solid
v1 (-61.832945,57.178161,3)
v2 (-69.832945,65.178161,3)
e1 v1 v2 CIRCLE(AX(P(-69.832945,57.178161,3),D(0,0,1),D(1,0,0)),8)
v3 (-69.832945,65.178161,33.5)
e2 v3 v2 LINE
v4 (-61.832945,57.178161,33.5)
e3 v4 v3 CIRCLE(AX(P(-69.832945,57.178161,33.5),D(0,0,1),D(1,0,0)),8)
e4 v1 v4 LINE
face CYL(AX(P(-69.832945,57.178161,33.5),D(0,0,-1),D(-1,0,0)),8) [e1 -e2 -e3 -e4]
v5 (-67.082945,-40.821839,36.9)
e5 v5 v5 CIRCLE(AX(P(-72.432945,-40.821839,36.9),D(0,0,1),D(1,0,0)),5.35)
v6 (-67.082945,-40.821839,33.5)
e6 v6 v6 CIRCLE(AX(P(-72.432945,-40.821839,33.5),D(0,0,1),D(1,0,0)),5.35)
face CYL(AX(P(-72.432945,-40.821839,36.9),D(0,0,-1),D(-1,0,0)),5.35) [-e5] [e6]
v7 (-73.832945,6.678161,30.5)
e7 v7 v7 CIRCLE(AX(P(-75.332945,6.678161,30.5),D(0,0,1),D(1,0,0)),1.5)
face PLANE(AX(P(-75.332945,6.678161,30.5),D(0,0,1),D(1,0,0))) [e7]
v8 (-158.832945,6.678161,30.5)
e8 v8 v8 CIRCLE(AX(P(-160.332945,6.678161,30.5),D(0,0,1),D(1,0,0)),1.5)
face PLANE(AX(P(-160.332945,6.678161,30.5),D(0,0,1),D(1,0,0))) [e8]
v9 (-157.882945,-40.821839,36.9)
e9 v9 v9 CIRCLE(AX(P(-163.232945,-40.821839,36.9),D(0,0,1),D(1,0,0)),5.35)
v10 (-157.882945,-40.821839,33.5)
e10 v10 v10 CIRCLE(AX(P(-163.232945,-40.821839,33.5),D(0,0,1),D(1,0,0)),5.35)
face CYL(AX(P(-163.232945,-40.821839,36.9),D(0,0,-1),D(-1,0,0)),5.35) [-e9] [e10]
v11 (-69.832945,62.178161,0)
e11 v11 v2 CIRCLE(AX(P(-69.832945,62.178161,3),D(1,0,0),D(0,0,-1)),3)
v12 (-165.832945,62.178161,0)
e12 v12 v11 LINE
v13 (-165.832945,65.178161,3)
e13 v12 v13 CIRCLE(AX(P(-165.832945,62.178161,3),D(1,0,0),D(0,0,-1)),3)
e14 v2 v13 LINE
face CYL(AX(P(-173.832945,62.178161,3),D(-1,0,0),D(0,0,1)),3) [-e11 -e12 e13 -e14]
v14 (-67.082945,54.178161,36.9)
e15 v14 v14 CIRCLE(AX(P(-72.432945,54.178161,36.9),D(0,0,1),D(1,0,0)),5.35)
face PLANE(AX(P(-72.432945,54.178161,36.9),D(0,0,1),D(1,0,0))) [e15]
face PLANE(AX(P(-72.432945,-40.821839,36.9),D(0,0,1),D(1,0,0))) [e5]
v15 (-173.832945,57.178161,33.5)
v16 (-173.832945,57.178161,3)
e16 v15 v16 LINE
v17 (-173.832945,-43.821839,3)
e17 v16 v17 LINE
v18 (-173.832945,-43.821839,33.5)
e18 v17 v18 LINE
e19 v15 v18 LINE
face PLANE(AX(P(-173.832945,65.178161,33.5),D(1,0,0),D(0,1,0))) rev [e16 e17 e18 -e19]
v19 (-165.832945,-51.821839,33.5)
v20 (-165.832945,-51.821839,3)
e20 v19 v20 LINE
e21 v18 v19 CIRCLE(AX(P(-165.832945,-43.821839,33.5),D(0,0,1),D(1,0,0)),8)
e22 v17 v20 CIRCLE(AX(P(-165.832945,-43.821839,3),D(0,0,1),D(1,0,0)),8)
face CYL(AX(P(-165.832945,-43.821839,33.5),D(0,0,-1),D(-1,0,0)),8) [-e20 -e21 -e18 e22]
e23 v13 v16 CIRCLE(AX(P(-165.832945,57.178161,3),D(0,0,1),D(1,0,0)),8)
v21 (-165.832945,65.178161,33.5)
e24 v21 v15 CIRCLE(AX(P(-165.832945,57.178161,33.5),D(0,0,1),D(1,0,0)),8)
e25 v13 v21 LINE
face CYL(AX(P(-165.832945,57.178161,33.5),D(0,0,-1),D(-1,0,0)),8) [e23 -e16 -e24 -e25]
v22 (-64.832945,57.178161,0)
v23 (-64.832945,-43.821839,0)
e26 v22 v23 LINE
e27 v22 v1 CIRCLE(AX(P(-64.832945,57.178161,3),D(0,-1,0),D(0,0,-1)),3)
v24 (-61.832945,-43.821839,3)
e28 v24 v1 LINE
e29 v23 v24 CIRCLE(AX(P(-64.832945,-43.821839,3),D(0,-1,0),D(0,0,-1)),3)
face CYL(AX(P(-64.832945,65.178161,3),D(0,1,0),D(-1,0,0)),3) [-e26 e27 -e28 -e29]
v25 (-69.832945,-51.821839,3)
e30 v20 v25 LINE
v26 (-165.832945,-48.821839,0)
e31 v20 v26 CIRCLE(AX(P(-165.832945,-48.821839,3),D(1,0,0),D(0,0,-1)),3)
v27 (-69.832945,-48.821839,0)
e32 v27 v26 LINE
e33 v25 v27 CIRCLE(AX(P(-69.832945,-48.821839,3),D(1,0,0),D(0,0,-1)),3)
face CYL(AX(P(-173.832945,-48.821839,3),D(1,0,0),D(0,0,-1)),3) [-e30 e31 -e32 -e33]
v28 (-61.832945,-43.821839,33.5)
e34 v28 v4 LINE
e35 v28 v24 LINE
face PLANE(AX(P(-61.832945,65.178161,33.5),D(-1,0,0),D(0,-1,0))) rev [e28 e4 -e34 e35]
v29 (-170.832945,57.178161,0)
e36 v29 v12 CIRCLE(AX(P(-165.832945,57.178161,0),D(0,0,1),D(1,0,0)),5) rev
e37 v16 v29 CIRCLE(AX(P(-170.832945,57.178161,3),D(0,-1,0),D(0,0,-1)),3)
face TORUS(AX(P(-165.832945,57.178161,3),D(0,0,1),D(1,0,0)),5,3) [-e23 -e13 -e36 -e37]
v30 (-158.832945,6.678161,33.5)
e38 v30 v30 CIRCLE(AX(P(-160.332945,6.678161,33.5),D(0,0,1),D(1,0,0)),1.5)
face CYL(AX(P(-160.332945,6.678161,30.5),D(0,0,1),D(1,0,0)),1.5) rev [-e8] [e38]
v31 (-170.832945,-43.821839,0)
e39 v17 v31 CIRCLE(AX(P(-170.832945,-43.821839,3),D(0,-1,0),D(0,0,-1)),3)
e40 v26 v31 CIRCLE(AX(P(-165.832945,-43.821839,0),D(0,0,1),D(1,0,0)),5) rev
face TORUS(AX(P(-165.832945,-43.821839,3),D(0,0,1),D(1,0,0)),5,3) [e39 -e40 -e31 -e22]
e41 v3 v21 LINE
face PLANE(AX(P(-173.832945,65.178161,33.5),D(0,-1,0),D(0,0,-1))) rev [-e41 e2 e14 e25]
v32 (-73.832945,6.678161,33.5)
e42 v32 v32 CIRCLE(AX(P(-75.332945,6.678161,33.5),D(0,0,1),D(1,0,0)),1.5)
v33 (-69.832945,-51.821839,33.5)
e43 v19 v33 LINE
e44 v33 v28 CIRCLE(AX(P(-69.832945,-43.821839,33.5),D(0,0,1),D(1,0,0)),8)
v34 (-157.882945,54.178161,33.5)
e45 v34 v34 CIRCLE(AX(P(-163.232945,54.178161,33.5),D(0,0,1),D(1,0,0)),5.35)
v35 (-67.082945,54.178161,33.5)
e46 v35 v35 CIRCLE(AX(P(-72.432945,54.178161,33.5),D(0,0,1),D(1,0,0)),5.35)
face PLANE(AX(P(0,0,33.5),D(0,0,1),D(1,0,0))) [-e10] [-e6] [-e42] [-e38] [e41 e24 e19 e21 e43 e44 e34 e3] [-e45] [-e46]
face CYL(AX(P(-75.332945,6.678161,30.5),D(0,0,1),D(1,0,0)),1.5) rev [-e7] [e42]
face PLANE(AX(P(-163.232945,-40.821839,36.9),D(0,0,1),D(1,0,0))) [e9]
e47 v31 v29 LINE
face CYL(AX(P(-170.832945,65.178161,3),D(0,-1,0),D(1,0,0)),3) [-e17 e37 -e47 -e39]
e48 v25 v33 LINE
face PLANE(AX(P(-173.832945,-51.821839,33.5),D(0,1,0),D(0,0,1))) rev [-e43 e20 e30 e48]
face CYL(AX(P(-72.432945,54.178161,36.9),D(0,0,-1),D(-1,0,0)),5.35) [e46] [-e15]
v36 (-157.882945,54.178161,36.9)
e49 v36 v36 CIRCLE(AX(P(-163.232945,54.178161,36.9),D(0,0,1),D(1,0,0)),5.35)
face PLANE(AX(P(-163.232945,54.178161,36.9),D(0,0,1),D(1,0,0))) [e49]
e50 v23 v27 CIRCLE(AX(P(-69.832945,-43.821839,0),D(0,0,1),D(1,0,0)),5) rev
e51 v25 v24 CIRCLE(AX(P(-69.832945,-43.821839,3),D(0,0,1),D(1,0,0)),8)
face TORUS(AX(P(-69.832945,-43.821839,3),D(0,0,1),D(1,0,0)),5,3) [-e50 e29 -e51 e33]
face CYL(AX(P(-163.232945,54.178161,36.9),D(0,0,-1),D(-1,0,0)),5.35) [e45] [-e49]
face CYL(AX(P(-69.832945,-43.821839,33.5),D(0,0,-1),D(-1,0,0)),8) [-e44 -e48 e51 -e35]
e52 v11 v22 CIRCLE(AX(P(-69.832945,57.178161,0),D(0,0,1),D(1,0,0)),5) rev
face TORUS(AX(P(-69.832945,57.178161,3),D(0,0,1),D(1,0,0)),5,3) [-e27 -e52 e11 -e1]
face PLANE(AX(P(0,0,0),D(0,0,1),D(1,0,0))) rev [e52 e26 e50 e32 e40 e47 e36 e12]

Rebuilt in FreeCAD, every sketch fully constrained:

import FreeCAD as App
import Part
import Sketcher

V = App.Vector
Q = App.Units.Quantity


def edges_at(feature, points):
    """Names of the edges that pass closest to the given points."""
    edges = feature.Shape.Edges
    near = lambda p: min(range(len(edges)), key=lambda i: edges[i].distToShape(Part.Vertex(*p))[0])
    return sorted({f"Edge{near(p) + 1}" for p in points})

doc = App.newDocument("Part")
body = doc.addObject("PartDesign::Body", "Body")

# Sketch on XY plane
sketch1 = doc.addObject("Sketcher::SketchObject", "Sketch")
body.addObject(sketch1)
sketch1.AttachmentSupport = (doc.XY_Plane, [""])
sketch1.MapMode = "FlatFace"
sketch1.addGeometry([
    Part.LineSegment(V(-174, 65, 0), V(-174, -52, 0)),
    Part.LineSegment(V(-174, -52, 0), V(-62, -52, 0)),
    Part.LineSegment(V(-62, -52, 0), V(-62, 65, 0)),
    Part.LineSegment(V(-62, 65, 0), V(-174, 65, 0)),
], False)
sketch1.addConstraint([
    Sketcher.Constraint("Coincident", 0, 2, 1, 1),
    Sketcher.Constraint("Coincident", 1, 2, 2, 1),
    Sketcher.Constraint("Coincident", 2, 2, 3, 1),
    Sketcher.Constraint("Coincident", 3, 2, 0, 1),
    Sketcher.Constraint("Vertical", 0),
    Sketcher.Constraint("Horizontal", 1),
    Sketcher.Constraint("Vertical", 2),
    Sketcher.Constraint("Horizontal", 3),
    Sketcher.Constraint("DistanceX", 1, 1, 1, 2, Q("112 mm")),
    Sketcher.Constraint("DistanceY", 0, 2, 0, 1, Q("117 mm")),
    Sketcher.Constraint("DistanceY", 0, 2, -1, 1, Q("51.821839 mm")),
    Sketcher.Constraint("DistanceX", 0, 2, -1, 1, Q("173.832945 mm")),
])
pad1 = doc.addObject("PartDesign::Pad", "Pad")
body.addObject(pad1)
pad1.Profile = sketch1
pad1.Length = 33.5
doc.recompute()

fillet = doc.addObject("PartDesign::Fillet", "Fillet")
body.addObject(fillet)
fillet.Base = (pad1, edges_at(pad1, [
    (-173.833, 65.178, 16.75),
    (-61.833, 65.178, 16.75),
    (-61.833, -51.822, 16.75),
    (-173.833, -51.822, 16.75),
]))
fillet.Radius = 8

# Sketch on XY plane
sketch2 = doc.addObject("Sketcher::SketchObject", "Sketch001")
body.addObject(sketch2)
sketch2.AttachmentSupport = (doc.XY_Plane, [""])
sketch2.MapMode = "FlatFace"
sketch2.AttachmentOffset = App.Placement(V(0, 0, 33.5), App.Rotation())
sketch2.addGeometry([
    Part.Circle(V(-75.3, 6.7, 0), V(0, 0, 1), 1.5),
    Part.Circle(V(-160.3, 6.7, 0), V(0, 0, 1), 1.5),
], False)
sketch2.addConstraint([
    Sketcher.Constraint("Equal", 0, 1),
    Sketcher.Constraint("Horizontal", 0, 3, 1, 3),
    Sketcher.Constraint("Diameter", 0, Q("3 mm")),
    Sketcher.Constraint("DistanceX", 1, 3, 0, 3, Q("85 mm")),
    Sketcher.Constraint("DistanceY", -1, 1, 0, 3, Q("6.678161 mm")),
    Sketcher.Constraint("DistanceX", 0, 3, -1, 1, Q("75.332945 mm")),
])
pocket1 = doc.addObject("PartDesign::Pocket", "Pocket")
body.addObject(pocket1)
pocket1.Profile = sketch2
pocket1.Length = 3

# Sketch on XY plane
sketch3 = doc.addObject("Sketcher::SketchObject", "Sketch002")
body.addObject(sketch3)
sketch3.AttachmentSupport = (doc.XY_Plane, [""])
sketch3.MapMode = "FlatFace"
sketch3.AttachmentOffset = App.Placement(V(0, 0, 33.5), App.Rotation())
sketch3.addGeometry([
    Part.Circle(V(-72, -41, 0), V(0, 0, 1), 5),
    Part.Circle(V(-163, -41, 0), V(0, 0, 1), 5),
    Part.Circle(V(-163, 54, 0), V(0, 0, 1), 5),
    Part.Circle(V(-72, 54, 0), V(0, 0, 1), 5),
], False)
sketch3.addConstraint([
    Sketcher.Constraint("Equal", 0, 1),
    Sketcher.Constraint("Equal", 1, 2),
    Sketcher.Constraint("Equal", 2, 3),
    Sketcher.Constraint("Horizontal", 0, 3, 1, 3),
    Sketcher.Constraint("Horizontal", 2, 3, 3, 3),
    Sketcher.Constraint("Vertical", 1, 3, 2, 3),
    Sketcher.Constraint("Vertical", 0, 3, 3, 3),
    Sketcher.Constraint("Diameter", 0, Q("10.7 mm")),
    Sketcher.Constraint("DistanceY", 1, 3, 2, 3, Q("95 mm")),
    Sketcher.Constraint("DistanceX", 1, 3, 0, 3, Q("90.8 mm")),
    Sketcher.Constraint("DistanceY", 0, 3, -1, 1, Q("40.821839 mm")),
    Sketcher.Constraint("DistanceX", 0, 3, -1, 1, Q("72.432945 mm")),
])
pad2 = doc.addObject("PartDesign::Pad", "Pad001")
body.addObject(pad2)
pad2.Profile = sketch3
pad2.Length = 3.4
doc.recompute()

fillet2 = doc.addObject("PartDesign::Fillet", "Fillet001")
body.addObject(fillet2)
fillet2.Base = (pad2, edges_at(pad2, [
    (-117.833, 65.178, 0),
    (-173.833, 6.678, 0),
    (-61.833, 6.678, 0),
    (-117.833, -51.822, 0),
    (-64.176, -49.479, 0),
    (-171.49, -49.479, 0),
    (-171.49, 62.835, 0),
    (-64.176, 62.835, 0),
]))
fillet2.Radius = 3

doc.recompute()
